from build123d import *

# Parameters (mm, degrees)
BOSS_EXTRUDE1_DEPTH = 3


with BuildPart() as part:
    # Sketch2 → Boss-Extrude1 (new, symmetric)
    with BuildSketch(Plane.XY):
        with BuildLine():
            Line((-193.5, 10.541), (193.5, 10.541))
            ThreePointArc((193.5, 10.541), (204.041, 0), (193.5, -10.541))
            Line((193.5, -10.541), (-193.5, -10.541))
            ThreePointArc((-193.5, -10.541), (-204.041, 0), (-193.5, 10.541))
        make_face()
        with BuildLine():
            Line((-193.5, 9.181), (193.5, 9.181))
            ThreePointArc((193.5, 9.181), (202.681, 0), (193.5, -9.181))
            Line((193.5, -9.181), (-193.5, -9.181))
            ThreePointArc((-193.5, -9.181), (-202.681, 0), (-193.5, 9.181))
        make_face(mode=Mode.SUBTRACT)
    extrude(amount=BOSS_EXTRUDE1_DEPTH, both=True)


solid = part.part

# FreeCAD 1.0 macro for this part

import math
import FreeCAD as App
import Part
import Sketcher
from FreeCAD import Vector
Q = App.Units.Quantity

doc = App.newDocument("Part")
body = doc.addObject("PartDesign::Body", "Body")

sketch1 = doc.addObject("Sketcher::SketchObject", "Sketch")
body.addObject(sketch1)
sketch1.AttachmentSupport = (doc.XY_Plane, [""])
sketch1.MapMode = "FlatFace"
sketch1.addGeometry([
    Part.LineSegment(Vector(193.5, 10.541, 0), Vector(-193.5, 10.541, 0)),
    Part.ArcOfCircle(Part.Circle(Vector(-193.5, 0, 0), Vector(0, 0, 1), 10.541), math.radians(90), math.radians(270)),
    Part.LineSegment(Vector(-193.5, -10.541, 0), Vector(193.5, -10.541, 0)),
    Part.ArcOfCircle(Part.Circle(Vector(193.5, 0, 0), Vector(0, 0, 1), 10.541), math.radians(-90), math.radians(90)),
    Part.LineSegment(Vector(-193.5, 9.181, 0), Vector(193.5, 9.181, 0)),
    Part.ArcOfCircle(Part.Circle(Vector(193.5, 0, 0), Vector(0, 0, 1), 9.181), math.radians(-90), math.radians(90)),
    Part.LineSegment(Vector(193.5, -9.181, 0), Vector(-193.5, -9.181, 0)),
    Part.ArcOfCircle(Part.Circle(Vector(-193.5, 0, 0), Vector(0, 0, 1), 9.181), math.radians(90), math.radians(270)),
], False)
sketch1.addConstraint([
    Sketcher.Constraint("Tangent", 0, 2, 1, 1),
    Sketcher.Constraint("Tangent", 1, 2, 2, 1),
    Sketcher.Constraint("Tangent", 2, 2, 3, 1),
    Sketcher.Constraint("Tangent", 3, 2, 0, 1),
    Sketcher.Constraint("Tangent", 4, 2, 5, 2),
    Sketcher.Constraint("Tangent", 5, 1, 6, 1),
    Sketcher.Constraint("Tangent", 6, 2, 7, 2),
    Sketcher.Constraint("Tangent", 7, 1, 4, 1),
    Sketcher.Constraint("Horizontal", 0),
    Sketcher.Constraint("Horizontal", 2),
    Sketcher.Constraint("Horizontal", 4),
    Sketcher.Constraint("Horizontal", 6),
    Sketcher.Constraint("Coincident", 5, 3, 3, 3),
    Sketcher.Constraint("Symmetric", 1, 3, 3, 3, -1, 1),
    Sketcher.Constraint("Vertical", 7, 3, 0, 2),
    Sketcher.Constraint("DistanceX", 0, 2, 0, 1, Q("387 mm")),
    Sketcher.Constraint("Radius", 1, Q("10.541 mm")),
    Sketcher.Constraint("Radius", 5, Q("9.181 mm")),
])
pad1 = doc.addObject("PartDesign::Pad", "Pad")
body.addObject(pad1)
pad1.Profile = sketch1
pad1.Length = 6
pad1.Midplane = True

doc.recompute()
